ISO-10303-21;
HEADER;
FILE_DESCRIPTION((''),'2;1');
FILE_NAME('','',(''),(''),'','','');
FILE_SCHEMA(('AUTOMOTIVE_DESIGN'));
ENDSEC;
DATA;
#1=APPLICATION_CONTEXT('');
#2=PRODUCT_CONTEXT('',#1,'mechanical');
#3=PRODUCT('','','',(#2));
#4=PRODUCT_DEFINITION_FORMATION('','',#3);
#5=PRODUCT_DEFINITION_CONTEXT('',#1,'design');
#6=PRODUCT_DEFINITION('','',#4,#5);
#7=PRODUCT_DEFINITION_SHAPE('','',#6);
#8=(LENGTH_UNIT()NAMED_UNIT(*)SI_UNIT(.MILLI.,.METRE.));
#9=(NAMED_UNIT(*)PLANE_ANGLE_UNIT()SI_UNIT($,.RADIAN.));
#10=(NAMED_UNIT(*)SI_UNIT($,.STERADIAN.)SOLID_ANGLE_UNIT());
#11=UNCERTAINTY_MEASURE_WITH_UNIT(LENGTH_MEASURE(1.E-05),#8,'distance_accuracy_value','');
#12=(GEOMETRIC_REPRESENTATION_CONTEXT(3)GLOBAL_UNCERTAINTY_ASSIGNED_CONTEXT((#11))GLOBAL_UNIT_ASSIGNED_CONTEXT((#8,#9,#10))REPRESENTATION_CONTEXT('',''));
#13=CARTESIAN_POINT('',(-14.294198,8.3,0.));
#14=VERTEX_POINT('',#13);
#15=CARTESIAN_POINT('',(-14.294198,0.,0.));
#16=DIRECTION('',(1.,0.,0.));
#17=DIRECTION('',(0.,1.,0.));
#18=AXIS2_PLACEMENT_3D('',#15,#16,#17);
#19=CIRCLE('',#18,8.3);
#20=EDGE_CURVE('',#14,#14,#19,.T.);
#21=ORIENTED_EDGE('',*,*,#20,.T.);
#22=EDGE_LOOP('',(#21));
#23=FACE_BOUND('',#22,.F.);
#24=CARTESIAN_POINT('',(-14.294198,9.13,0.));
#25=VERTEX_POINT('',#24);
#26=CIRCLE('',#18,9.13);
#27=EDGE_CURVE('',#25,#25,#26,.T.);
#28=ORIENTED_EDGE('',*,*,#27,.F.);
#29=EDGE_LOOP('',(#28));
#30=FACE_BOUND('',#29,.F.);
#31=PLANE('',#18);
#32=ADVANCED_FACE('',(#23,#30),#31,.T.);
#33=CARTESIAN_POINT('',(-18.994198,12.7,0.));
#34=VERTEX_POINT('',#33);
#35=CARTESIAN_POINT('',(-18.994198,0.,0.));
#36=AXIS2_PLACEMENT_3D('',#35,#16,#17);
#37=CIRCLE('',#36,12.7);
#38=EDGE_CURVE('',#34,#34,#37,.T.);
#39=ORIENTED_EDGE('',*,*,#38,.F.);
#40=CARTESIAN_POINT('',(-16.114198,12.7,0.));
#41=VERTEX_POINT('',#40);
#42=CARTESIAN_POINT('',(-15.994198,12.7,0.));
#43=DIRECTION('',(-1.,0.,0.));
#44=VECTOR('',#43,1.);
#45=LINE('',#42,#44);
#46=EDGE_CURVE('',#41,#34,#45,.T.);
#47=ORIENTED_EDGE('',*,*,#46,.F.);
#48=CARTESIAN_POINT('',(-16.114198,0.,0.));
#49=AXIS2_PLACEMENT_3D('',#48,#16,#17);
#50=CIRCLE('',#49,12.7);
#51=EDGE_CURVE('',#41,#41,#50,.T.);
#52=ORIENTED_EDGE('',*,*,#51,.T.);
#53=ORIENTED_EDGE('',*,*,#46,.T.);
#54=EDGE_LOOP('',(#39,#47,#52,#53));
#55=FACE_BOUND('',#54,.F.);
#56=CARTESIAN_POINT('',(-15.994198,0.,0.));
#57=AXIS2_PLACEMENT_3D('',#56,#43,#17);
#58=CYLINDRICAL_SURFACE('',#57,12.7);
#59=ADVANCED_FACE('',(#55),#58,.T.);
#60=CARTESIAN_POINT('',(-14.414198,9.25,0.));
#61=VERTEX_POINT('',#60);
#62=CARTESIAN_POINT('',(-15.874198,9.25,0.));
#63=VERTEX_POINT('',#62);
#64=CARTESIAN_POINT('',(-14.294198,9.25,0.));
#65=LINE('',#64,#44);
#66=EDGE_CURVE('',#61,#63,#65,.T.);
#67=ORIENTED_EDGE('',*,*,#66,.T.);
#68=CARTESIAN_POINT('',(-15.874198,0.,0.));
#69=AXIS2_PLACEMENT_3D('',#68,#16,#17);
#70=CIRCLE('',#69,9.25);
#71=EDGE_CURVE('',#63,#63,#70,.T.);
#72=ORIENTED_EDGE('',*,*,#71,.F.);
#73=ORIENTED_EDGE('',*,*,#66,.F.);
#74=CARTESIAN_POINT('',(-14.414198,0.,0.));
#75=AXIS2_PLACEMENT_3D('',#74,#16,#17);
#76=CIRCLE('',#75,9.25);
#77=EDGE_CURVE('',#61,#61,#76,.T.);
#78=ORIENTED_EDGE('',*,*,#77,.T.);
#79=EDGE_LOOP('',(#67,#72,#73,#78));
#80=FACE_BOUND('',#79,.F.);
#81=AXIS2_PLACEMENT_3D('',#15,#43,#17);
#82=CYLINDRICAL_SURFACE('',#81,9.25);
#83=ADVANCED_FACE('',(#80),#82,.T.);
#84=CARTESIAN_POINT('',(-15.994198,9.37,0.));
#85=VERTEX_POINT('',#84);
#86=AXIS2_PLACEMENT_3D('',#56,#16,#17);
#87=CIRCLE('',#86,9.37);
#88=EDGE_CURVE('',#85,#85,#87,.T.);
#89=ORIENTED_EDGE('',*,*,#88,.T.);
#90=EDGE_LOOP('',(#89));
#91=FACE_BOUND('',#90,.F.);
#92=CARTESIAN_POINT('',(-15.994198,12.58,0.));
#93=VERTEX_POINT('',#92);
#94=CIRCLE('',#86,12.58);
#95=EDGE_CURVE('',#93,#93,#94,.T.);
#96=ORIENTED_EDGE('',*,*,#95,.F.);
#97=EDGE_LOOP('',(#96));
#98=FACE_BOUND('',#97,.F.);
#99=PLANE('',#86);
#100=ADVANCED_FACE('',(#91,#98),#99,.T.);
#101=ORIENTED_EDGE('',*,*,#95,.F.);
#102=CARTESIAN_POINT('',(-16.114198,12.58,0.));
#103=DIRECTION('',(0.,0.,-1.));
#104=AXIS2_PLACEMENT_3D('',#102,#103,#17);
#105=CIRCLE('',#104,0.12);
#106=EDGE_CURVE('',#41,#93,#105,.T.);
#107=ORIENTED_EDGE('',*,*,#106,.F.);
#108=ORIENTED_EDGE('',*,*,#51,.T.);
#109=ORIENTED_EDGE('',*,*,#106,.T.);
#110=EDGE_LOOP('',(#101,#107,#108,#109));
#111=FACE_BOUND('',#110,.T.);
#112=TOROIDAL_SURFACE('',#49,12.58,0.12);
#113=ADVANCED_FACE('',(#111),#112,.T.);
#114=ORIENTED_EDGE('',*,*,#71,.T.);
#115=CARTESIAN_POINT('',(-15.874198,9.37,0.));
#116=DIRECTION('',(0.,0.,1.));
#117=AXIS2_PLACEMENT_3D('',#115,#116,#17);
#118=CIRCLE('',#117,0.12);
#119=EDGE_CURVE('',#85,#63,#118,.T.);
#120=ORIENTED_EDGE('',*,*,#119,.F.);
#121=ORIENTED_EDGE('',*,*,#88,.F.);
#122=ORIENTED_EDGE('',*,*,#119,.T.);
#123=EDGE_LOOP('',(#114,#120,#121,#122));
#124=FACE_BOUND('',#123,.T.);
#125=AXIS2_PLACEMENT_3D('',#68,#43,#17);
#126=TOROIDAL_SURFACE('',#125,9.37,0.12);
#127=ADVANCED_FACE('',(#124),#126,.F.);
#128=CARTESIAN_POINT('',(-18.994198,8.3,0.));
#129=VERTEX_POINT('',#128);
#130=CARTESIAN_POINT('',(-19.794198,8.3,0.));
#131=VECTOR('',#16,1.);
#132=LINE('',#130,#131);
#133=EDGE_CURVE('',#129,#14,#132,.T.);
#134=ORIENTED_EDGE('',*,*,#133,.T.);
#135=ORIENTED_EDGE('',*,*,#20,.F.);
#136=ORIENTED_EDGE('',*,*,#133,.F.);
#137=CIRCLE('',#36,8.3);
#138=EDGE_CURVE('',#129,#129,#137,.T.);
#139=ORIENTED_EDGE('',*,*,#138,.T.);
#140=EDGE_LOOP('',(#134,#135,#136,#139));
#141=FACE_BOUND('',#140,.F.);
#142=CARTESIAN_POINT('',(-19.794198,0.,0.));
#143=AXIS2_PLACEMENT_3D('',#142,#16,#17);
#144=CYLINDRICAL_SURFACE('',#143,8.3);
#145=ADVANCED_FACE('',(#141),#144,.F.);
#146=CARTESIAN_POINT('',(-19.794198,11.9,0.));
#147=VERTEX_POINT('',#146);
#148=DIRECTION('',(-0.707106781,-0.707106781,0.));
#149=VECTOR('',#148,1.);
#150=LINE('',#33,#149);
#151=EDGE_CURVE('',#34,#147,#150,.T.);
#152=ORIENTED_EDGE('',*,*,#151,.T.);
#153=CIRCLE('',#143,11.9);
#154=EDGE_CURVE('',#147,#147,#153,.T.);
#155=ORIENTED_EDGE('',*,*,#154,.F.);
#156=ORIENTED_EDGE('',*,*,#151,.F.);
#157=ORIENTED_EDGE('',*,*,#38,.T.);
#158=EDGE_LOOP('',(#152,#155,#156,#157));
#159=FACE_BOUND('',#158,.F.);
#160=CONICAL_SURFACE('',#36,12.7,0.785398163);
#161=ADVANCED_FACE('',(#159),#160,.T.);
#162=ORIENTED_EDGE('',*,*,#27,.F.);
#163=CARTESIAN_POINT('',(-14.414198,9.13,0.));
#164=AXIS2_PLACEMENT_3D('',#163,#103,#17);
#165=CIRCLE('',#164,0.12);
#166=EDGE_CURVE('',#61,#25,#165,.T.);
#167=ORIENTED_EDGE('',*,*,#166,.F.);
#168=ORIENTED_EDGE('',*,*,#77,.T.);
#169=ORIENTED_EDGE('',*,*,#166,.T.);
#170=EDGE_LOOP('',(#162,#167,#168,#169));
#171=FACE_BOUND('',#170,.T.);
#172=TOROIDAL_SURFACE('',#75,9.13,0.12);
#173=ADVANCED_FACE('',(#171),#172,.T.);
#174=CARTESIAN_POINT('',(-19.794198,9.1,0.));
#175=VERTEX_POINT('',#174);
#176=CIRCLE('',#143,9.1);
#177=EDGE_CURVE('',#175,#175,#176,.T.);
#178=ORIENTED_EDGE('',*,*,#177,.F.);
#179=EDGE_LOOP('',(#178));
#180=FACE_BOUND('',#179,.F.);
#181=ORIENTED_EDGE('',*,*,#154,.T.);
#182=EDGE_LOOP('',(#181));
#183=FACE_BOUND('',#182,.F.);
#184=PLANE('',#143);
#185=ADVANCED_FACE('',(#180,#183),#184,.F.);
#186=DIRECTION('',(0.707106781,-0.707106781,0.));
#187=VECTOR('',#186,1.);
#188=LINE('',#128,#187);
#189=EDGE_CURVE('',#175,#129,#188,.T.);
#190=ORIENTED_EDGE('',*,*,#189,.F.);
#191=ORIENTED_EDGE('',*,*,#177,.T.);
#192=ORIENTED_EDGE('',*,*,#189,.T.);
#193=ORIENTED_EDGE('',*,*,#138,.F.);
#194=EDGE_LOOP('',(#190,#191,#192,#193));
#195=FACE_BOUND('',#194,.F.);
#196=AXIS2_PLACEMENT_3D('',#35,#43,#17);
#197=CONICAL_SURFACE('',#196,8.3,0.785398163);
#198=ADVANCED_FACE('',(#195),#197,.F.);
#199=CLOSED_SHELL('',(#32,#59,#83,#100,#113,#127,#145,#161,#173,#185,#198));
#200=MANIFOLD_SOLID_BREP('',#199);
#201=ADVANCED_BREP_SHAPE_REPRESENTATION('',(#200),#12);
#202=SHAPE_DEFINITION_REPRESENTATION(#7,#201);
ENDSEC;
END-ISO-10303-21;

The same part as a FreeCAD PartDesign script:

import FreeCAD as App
import Part
import Sketcher
from FreeCAD import Vector


def edges_at(feature, points):
    """Names of the edges that pass closest to the given points."""
    edges = feature.Shape.Edges
    near = lambda p: min(range(len(edges)), key=lambda i: edges[i].distToShape(Part.Vertex(*p))[0])
    return sorted({f"Edge{near(p) + 1}" for p in points})

doc = App.newDocument("Part")
body = doc.addObject("PartDesign::Body", "Body")

# Sketch on XY plane
sketch1 = body.newObject("Sketcher::SketchObject", "Sketch")
sketch1.AttachmentSupport = (doc.getObject("XY_Plane"), [""])
sketch1.MapMode = "FlatFace"
sketch1.addGeometry(Part.LineSegment(Vector(-16, 12.7, 0), Vector(-19.8, 12.7, 0)), False)
sketch1.addGeometry(Part.LineSegment(Vector(-19.8, 12.7, 0), Vector(-19.8, 8.3, 0)), False)
sketch1.addGeometry(Part.LineSegment(Vector(-19.8, 8.3, 0), Vector(-14.3, 8.3, 0)), False)
sketch1.addGeometry(Part.LineSegment(Vector(-14.3, 8.3, 0), Vector(-14.3, 9.2, 0)), False)
sketch1.addGeometry(Part.LineSegment(Vector(-14.3, 9.2, 0), Vector(-16, 9.2, 0)), False)
sketch1.addGeometry(Part.LineSegment(Vector(-16, 9.2, 0), Vector(-16, 12.7, 0)), False)
sketch1.addConstraint(Sketcher.Constraint("Coincident", 0, 2, 1, 1))
sketch1.addConstraint(Sketcher.Constraint("Coincident", 1, 2, 2, 1))
sketch1.addConstraint(Sketcher.Constraint("Coincident", 2, 2, 3, 1))
sketch1.addConstraint(Sketcher.Constraint("Coincident", 3, 2, 4, 1))
sketch1.addConstraint(Sketcher.Constraint("Coincident", 4, 2, 5, 1))
sketch1.addConstraint(Sketcher.Constraint("Coincident", 5, 2, 0, 1))
sketch1.addConstraint(Sketcher.Constraint("Horizontal", 0))
sketch1.addConstraint(Sketcher.Constraint("Vertical", 1))
sketch1.addConstraint(Sketcher.Constraint("Horizontal", 2))
sketch1.addConstraint(Sketcher.Constraint("Vertical", 3))
sketch1.addConstraint(Sketcher.Constraint("Horizontal", 4))
sketch1.addConstraint(Sketcher.Constraint("Vertical", 5))
sketch1.addConstraint(Sketcher.Constraint("DistanceX", 0, 2, 0, 1, 3.8))
sketch1.addConstraint(Sketcher.Constraint("DistanceX", 2, 1, 2, 2, 5.5))
sketch1.addConstraint(Sketcher.Constraint("DistanceY", 1, 2, 1, 1, 4.4))
sketch1.addConstraint(Sketcher.Constraint("DistanceY", 3, 1, 3, 2, 0.95))
sketch1.addConstraint(Sketcher.Constraint("DistanceY", -1, 1, 0, 2, 12.7))
sketch1.addConstraint(Sketcher.Constraint("DistanceX", 0, 2, -1, 1, 19.794198))
revolution = body.newObject("PartDesign::Revolution", "Revolution")
revolution.Profile = sketch1
revolution.ReferenceAxis = (sketch1, ["H_Axis"])
revolution.Angle = 360
doc.recompute()

chamfer = body.newObject("PartDesign::Chamfer", "Chamfer")
chamfer.Base = (revolution, edges_at(revolution, [(-19.794, -8.3, 0), (-19.794, -12.7, 0)]))
chamfer.Size = 0.8
doc.recompute()

fillet = body.newObject("PartDesign::Fillet", "Fillet")
fillet.Base = (chamfer, edges_at(chamfer, [(-15.994, -9.25, 0), (-14.294, -9.25, 0), (-15.994, -12.7, 0)]))
fillet.Radius = 0.12

doc.recompute()
